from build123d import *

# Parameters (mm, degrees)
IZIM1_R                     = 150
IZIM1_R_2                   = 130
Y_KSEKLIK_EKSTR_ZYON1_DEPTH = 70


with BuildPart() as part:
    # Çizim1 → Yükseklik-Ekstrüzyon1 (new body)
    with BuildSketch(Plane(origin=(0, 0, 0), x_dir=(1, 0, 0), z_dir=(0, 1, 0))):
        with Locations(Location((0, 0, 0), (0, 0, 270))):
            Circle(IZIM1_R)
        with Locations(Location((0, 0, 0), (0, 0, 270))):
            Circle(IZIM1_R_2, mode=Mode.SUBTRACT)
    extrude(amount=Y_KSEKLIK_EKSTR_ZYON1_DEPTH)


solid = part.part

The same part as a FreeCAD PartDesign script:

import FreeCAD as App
import Part
import Sketcher
from FreeCAD import Vector

doc = App.newDocument("Part")
body = doc.addObject("PartDesign::Body", "Body")

# Sketch on XZ plane
sketch1 = body.newObject("Sketcher::SketchObject", "Sketch")
sketch1.AttachmentSupport = (doc.getObject("XZ_Plane"), [""])
sketch1.MapMode = "FlatFace"
sketch1.addGeometry(Part.Circle(Vector(0, 0, 0), Vector(0, 0, 1), 150), False)
sketch1.addGeometry(Part.Circle(Vector(0, 0, 0), Vector(0, 0, 1), 130), False)
sketch1.addConstraint(Sketcher.Constraint("Coincident", 0, 3, -1, 1))
sketch1.addConstraint(Sketcher.Constraint("Coincident", 1, 3, -1, 1))
sketch1.addConstraint(Sketcher.Constraint("Diameter", 0, 300.0))
sketch1.addConstraint(Sketcher.Constraint("Diameter", 1, 260.0))
pad1 = body.newObject("PartDesign::Pad", "Pad")
pad1.Profile = sketch1
pad1.Length = 70
pad1.Reversed = True

doc.recompute()
